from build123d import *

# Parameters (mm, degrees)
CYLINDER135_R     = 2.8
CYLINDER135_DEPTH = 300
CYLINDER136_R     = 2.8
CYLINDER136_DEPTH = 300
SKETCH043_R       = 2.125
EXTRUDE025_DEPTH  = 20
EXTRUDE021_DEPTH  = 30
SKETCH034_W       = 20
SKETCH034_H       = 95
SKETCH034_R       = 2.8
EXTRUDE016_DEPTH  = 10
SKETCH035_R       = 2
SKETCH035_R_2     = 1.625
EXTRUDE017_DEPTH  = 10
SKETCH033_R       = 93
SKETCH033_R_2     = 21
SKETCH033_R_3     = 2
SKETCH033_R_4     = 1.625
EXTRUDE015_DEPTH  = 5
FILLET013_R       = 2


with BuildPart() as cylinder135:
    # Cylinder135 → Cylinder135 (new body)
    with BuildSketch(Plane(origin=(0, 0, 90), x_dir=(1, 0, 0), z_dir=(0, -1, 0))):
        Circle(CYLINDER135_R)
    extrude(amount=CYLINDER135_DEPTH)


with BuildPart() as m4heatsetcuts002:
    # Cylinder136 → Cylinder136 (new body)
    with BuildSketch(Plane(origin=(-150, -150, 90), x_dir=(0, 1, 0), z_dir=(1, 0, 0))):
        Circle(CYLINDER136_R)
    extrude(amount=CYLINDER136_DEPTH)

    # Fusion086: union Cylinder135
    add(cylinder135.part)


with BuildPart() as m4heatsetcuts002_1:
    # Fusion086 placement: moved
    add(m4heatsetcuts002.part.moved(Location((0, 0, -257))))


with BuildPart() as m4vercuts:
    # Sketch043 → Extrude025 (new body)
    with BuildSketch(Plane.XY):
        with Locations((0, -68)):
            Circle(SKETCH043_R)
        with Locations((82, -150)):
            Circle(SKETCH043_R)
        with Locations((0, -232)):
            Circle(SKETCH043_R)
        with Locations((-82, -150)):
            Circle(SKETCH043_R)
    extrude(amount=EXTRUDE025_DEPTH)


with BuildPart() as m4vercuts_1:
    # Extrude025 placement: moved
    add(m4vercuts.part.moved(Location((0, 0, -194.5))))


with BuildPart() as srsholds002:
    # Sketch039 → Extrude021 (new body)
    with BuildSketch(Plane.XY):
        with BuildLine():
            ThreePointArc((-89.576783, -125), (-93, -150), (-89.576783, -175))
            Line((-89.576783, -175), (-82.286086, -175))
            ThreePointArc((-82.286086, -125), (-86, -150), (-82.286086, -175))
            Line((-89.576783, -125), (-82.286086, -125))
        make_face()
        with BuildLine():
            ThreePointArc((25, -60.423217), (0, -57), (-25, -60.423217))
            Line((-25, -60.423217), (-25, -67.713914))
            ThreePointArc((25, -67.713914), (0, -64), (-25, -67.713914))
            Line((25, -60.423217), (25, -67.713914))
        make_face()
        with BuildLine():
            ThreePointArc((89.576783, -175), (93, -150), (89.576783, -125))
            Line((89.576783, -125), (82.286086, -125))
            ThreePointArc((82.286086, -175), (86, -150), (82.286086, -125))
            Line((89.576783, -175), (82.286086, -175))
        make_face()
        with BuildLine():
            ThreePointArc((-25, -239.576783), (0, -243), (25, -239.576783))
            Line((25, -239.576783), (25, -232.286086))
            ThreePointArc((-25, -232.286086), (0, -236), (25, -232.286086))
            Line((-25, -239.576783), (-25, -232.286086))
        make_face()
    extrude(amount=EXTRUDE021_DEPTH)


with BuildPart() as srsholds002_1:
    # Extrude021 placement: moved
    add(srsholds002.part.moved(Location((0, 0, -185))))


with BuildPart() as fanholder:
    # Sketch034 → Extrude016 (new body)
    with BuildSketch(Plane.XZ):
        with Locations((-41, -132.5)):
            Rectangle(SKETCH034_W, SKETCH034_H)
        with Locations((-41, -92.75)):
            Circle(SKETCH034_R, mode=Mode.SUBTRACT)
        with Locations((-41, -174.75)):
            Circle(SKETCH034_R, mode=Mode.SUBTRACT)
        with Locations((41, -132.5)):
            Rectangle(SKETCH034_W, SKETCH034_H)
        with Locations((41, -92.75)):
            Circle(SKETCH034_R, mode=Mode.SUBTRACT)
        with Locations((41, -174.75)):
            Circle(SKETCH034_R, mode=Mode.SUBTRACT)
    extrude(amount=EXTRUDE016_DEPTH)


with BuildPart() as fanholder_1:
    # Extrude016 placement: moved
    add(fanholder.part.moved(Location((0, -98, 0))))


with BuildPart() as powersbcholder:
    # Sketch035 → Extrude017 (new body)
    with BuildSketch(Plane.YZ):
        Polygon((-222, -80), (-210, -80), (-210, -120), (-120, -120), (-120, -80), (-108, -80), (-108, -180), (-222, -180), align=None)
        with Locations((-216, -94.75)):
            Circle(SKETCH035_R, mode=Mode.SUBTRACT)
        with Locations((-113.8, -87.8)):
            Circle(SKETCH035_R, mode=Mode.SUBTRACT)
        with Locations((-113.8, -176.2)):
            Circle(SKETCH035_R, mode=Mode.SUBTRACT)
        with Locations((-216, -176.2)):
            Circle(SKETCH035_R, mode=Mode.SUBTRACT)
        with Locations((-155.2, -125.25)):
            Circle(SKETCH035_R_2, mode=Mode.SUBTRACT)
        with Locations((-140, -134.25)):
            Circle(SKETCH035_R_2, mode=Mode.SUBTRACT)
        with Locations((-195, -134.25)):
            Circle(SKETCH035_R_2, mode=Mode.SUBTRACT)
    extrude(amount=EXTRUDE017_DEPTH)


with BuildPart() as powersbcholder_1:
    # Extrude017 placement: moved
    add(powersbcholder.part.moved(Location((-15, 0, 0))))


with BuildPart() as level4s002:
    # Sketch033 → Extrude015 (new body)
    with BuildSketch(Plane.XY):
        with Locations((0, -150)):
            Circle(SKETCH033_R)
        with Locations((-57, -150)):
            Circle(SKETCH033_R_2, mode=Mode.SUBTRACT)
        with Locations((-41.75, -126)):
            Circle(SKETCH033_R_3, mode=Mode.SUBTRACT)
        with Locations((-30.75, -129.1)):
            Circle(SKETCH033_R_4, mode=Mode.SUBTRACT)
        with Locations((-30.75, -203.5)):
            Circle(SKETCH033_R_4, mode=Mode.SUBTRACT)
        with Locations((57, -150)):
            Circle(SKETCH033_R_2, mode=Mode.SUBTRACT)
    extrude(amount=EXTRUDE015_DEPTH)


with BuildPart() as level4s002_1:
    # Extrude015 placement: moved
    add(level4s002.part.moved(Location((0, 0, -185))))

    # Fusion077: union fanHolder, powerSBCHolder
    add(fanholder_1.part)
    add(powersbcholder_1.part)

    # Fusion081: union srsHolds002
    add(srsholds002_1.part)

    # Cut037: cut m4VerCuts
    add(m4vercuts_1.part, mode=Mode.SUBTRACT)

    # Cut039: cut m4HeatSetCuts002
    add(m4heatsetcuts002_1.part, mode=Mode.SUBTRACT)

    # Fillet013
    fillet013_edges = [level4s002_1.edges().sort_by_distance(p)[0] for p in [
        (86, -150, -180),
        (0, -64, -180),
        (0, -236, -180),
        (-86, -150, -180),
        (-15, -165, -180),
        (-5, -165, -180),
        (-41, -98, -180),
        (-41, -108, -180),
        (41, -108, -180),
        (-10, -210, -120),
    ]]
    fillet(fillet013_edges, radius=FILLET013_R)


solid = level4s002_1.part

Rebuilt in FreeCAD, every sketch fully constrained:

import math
import FreeCAD as App
import Part
import Sketcher

V = App.Vector
Q = App.Units.Quantity


def edges_at(feature, points):
    """Names of the edges that pass closest to the given points."""
    edges = feature.Shape.Edges
    near = lambda p: min(range(len(edges)), key=lambda i: edges[i].distToShape(Part.Vertex(*p))[0])
    return sorted({f"Edge{near(p) + 1}" for p in points})

doc = App.newDocument("Part")
body = doc.addObject("PartDesign::Body", "Body")

# Sketch on XZ plane
sketch1 = doc.addObject("Sketcher::SketchObject", "Sketch")
body.addObject(sketch1)
sketch1.AttachmentSupport = (doc.XZ_Plane, [""])
sketch1.MapMode = "FlatFace"
sketch1.addGeometry(Part.Circle(V(0, 90, 0), V(0, 0, 1), 2.8), False)
sketch1.addConstraint(Sketcher.Constraint("PointOnObject", 0, 3, -2))
sketch1.addConstraint(Sketcher.Constraint("Diameter", 0, Q("5.6 mm")))
sketch1.addConstraint(Sketcher.Constraint("DistanceY", -1, 1, 0, 3, Q("90 mm")))
pad1 = doc.addObject("PartDesign::Pad", "Pad")
body.addObject(pad1)
pad1.Profile = sketch1
pad1.Length = 300
body2 = doc.addObject("PartDesign::Body", "Body001")

# Sketch on YZ plane
sketch2 = doc.addObject("Sketcher::SketchObject", "Sketch001")
body2.addObject(sketch2)
sketch2.AttachmentSupport = (doc.getObject("YZ_Plane001"), [""])
sketch2.MapMode = "FlatFace"
sketch2.AttachmentOffset = App.Placement(V(0, 0, -150), App.Rotation())
sketch2.addGeometry(Part.Circle(V(-150, 90, 0), V(0, 0, 1), 2.8), False)
sketch2.addConstraint(Sketcher.Constraint("Diameter", 0, Q("5.6 mm")))
sketch2.addConstraint(Sketcher.Constraint("DistanceX", 0, 3, -1, 1, Q("150 mm")))
sketch2.addConstraint(Sketcher.Constraint("DistanceY", -1, 1, 0, 3, Q("90 mm")))
pad2 = doc.addObject("PartDesign::Pad", "Pad001")
body2.addObject(pad2)
pad2.Profile = sketch2
pad2.Length = 300
doc.recompute()

boolean = doc.addObject("PartDesign::Boolean", "Boolean")
body2.addObject(boolean)
boolean.Type = "Fuse"
boolean.addObjects([body])
body3 = doc.addObject("PartDesign::Body", "Body002")
doc.recompute()

body2.Placement = App.Placement(V(0, 0, -257), App.Rotation(V(0, 0, 1), 0))
boolean2 = doc.addObject("PartDesign::Boolean", "Boolean001")
body3.addObject(boolean2)
boolean2.Type = "Fuse"
boolean2.addObjects([body2])
body4 = doc.addObject("PartDesign::Body", "Body003")
body4.AllowCompound = True

# Sketch on XY plane
sketch3 = doc.addObject("Sketcher::SketchObject", "Sketch002")
body4.addObject(sketch3)
sketch3.AttachmentSupport = (doc.getObject("XY_Plane003"), [""])
sketch3.MapMode = "FlatFace"
sketch3.addGeometry(Part.Circle(V(0, -68, 0), V(0, 0, 1), 2.1), False)
sketch3.addGeometry(Part.Circle(V(82, -150, 0), V(0, 0, 1), 2.1), False)
sketch3.addGeometry(Part.Circle(V(0, -232, 0), V(0, 0, 1), 2.1), False)
sketch3.addGeometry(Part.Circle(V(-82, -150, 0), V(0, 0, 1), 2.1), False)
sketch3.addConstraint(Sketcher.Constraint("Equal", 0, 1))
sketch3.addConstraint(Sketcher.Constraint("Equal", 1, 2))
sketch3.addConstraint(Sketcher.Constraint("Equal", 2, 3))
sketch3.addConstraint(Sketcher.Constraint("Symmetric", 1, 3, 3, 3, -2))
sketch3.addConstraint(Sketcher.Constraint("PointOnObject", 0, 3, -2))
sketch3.addConstraint(Sketcher.Constraint("PointOnObject", 2, 3, -2))
sketch3.addConstraint(Sketcher.Constraint("Diameter", 0, Q("4.25 mm")))
sketch3.addConstraint(Sketcher.Constraint("DistanceY", 0, 3, -1, 1, Q("68 mm")))
sketch3.addConstraint(Sketcher.Constraint("DistanceX", -1, 1, 1, 3, Q("82 mm")))
sketch3.addConstraint(Sketcher.Constraint("DistanceY", 1, 3, -1, 1, Q("150 mm")))
sketch3.addConstraint(Sketcher.Constraint("DistanceY", 2, 3, -1, 1, Q("232 mm")))
pad3 = doc.addObject("PartDesign::Pad", "Pad002")
body4.addObject(pad3)
pad3.Profile = sketch3
pad3.Length = 20
body5 = doc.addObject("PartDesign::Body", "Body004")
body5.AllowCompound = True
doc.recompute()

body4.Placement = App.Placement(V(0, 0, -194.5), App.Rotation(V(0, 0, 1), 0))
boolean3 = doc.addObject("PartDesign::Boolean", "Boolean002")
body5.addObject(boolean3)
boolean3.Type = "Fuse"
boolean3.addObjects([body4])
body6 = doc.addObject("PartDesign::Body", "Body005")
body6.AllowCompound = True

# Sketch on XY plane
sketch4 = doc.addObject("Sketcher::SketchObject", "Sketch003")
body6.addObject(sketch4)
sketch4.AttachmentSupport = (doc.getObject("XY_Plane005"), [""])
sketch4.MapMode = "FlatFace"
sketch4.addGeometry(Part.ArcOfCircle(Part.Circle(V(0.000008, -150, 0), V(0, 0, 1), 93.000008), math.radians(164.406106), math.radians(195.593894)), False)
sketch4.addGeometry(Part.LineSegment(V(-89.576783, -175, 0), V(-82.286086, -175, 0)), False)
sketch4.addGeometry(Part.ArcOfCircle(Part.Circle(V(-0.000007, -150, 0), V(0, 0, 1), 85.999993), math.radians(163.100269), math.radians(196.899731)), False)
sketch4.addGeometry(Part.LineSegment(V(-82.286086, -125, 0), V(-89.576783, -125, 0)), False)
sketch4.addGeometry(Part.ArcOfCircle(Part.Circle(V(0, -150.000008, 0), V(0, 0, 1), 93.000008), math.radians(74.406106), math.radians(105.593894)), False)
sketch4.addGeometry(Part.LineSegment(V(-25, -60.423217, 0), V(-25, -67.713914, 0)), False)
sketch4.addGeometry(Part.ArcOfCircle(Part.Circle(V(0, -149.999993, 0), V(0, 0, 1), 85.999993), math.radians(73.100269), math.radians(106.899731)), False)
sketch4.addGeometry(Part.LineSegment(V(25, -67.713914, 0), V(25, -60.423217, 0)), False)
sketch4.addGeometry(Part.ArcOfCircle(Part.Circle(V(-0.000008, -150, 0), V(0, 0, 1), 93.000008), math.radians(-15.593894), math.radians(15.593894)), False)
sketch4.addGeometry(Part.LineSegment(V(89.576783, -125, 0), V(82.286086, -125, 0)), False)
sketch4.addGeometry(Part.ArcOfCircle(Part.Circle(V(0.000007, -150, 0), V(0, 0, 1), 85.999993), math.radians(-16.899731), math.radians(16.899731)), False)
sketch4.addGeometry(Part.LineSegment(V(82.286086, -175, 0), V(89.576783, -175, 0)), False)
sketch4.addGeometry(Part.ArcOfCircle(Part.Circle(V(0, -149.999992, 0), V(0, 0, 1), 93.000008), math.radians(-105.593894), math.radians(-74.406106)), False)
sketch4.addGeometry(Part.LineSegment(V(25, -239.576783, 0), V(25, -232.286086, 0)), False)
sketch4.addGeometry(Part.ArcOfCircle(Part.Circle(V(0, -150.000007, 0), V(0, 0, 1), 85.999993), math.radians(-106.899731), math.radians(-73.100269)), False)
sketch4.addGeometry(Part.LineSegment(V(-25, -232.286086, 0), V(-25, -239.576783, 0)), False)
sketch4.addConstraint(Sketcher.Constraint("Coincident", 0, 2, 1, 1))
sketch4.addConstraint(Sketcher.Constraint("Coincident", 1, 2, 2, 2))
sketch4.addConstraint(Sketcher.Constraint("Coincident", 2, 1, 3, 1))
sketch4.addConstraint(Sketcher.Constraint("Coincident", 3, 2, 0, 1))
sketch4.addConstraint(Sketcher.Constraint("Coincident", 4, 2, 5, 1))
sketch4.addConstraint(Sketcher.Constraint("Coincident", 5, 2, 6, 2))
sketch4.addConstraint(Sketcher.Constraint("Coincident", 6, 1, 7, 1))
sketch4.addConstraint(Sketcher.Constraint("Coincident", 7, 2, 4, 1))
sketch4.addConstraint(Sketcher.Constraint("Coincident", 8, 2, 9, 1))
sketch4.addConstraint(Sketcher.Constraint("Coincident", 9, 2, 10, 2))
sketch4.addConstraint(Sketcher.Constraint("Coincident", 10, 1, 11, 1))
sketch4.addConstraint(Sketcher.Constraint("Coincident", 11, 2, 8, 1))
sketch4.addConstraint(Sketcher.Constraint("Coincident", 12, 2, 13, 1))
sketch4.addConstraint(Sketcher.Constraint("Coincident", 13, 2, 14, 2))
sketch4.addConstraint(Sketcher.Constraint("Coincident", 14, 1, 15, 1))
sketch4.addConstraint(Sketcher.Constraint("Coincident", 15, 2, 12, 1))
sketch4.addConstraint(Sketcher.Constraint("Horizontal", 1))
sketch4.addConstraint(Sketcher.Constraint("Horizontal", 3))
sketch4.addConstraint(Sketcher.Constraint("Vertical", 5))
sketch4.addConstraint(Sketcher.Constraint("Vertical", 7))
sketch4.addConstraint(Sketcher.Constraint("Horizontal", 9))
sketch4.addConstraint(Sketcher.Constraint("Horizontal", 11))
sketch4.addConstraint(Sketcher.Constraint("Vertical", 13))
sketch4.addConstraint(Sketcher.Constraint("Vertical", 15))
sketch4.addConstraint(Sketcher.Constraint("Coincident", 6, 3, 2, 3))
sketch4.addConstraint(Sketcher.Constraint("Coincident", 8, 3, 2, 3))
sketch4.addConstraint(Sketcher.Constraint("Coincident", 10, 3, 0, 3))
sketch4.addConstraint(Sketcher.Constraint("Coincident", 12, 3, 6, 3))
sketch4.addConstraint(Sketcher.Constraint("Coincident", 14, 3, 2, 3))
sketch4.addConstraint(Sketcher.Constraint("PointOnObject", 4, 3, -2))
sketch4.addConstraint(Sketcher.Constraint("PointOnObject", 6, 3, -2))
sketch4.addConstraint(Sketcher.Constraint("DistanceY", 0, 3, -1, 1, Q("150 mm")))
sketch4.addConstraint(Sketcher.Constraint("DistanceY", 2, 3, -1, 1, Q("150 mm")))
sketch4.addConstraint(Sketcher.Constraint("DistanceY", 0, 2, -1, 1, Q("175 mm")))
sketch4.addConstraint(Sketcher.Constraint("DistanceY", 2, 1, -1, 1, Q("125 mm")))
sketch4.addConstraint(Sketcher.Constraint("DistanceX", 4, 2, -1, 1, Q("25 mm")))
sketch4.addConstraint(Sketcher.Constraint("DistanceX", -1, 1, 6, 1, Q("25 mm")))
sketch4.addConstraint(Sketcher.Constraint("DistanceY", 8, 2, -1, 1, Q("125 mm")))
sketch4.addConstraint(Sketcher.Constraint("DistanceY", 10, 1, -1, 1, Q("175 mm")))
sketch4.addConstraint(Sketcher.Constraint("DistanceX", -1, 1, 12, 2, Q("25 mm")))
sketch4.addConstraint(Sketcher.Constraint("DistanceX", 14, 1, -1, 1, Q("25 mm")))
sketch4.addConstraint(Sketcher.Constraint("Radius", 0, Q("93.000008 mm")))
sketch4.addConstraint(Sketcher.Constraint("Radius", 2, Q("85.999993 mm")))
sketch4.addConstraint(Sketcher.Constraint("Radius", 4, Q("93.000008 mm")))
sketch4.addConstraint(Sketcher.Constraint("Radius", 6, Q("85.999993 mm")))
sketch4.addConstraint(Sketcher.Constraint("Radius", 8, Q("93.000008 mm")))
sketch4.addConstraint(Sketcher.Constraint("Radius", 10, Q("85.999993 mm")))
sketch4.addConstraint(Sketcher.Constraint("Radius", 12, Q("93.000008 mm")))
sketch4.addConstraint(Sketcher.Constraint("Radius", 14, Q("85.999993 mm")))
sketch4.addConstraint(Sketcher.Constraint("DistanceX", 1, 1, 1, 2, Q("7.290697 mm")))
sketch4.addConstraint(Sketcher.Constraint("DistanceY", 5, 2, 5, 1, Q("7.290697 mm")))
pad4 = doc.addObject("PartDesign::Pad", "Pad003")
body6.addObject(pad4)
pad4.Profile = sketch4
pad4.Length = 30
body7 = doc.addObject("PartDesign::Body", "Body006")
body7.AllowCompound = True
doc.recompute()

body6.Placement = App.Placement(V(0, 0, -185), App.Rotation(V(0, 0, 1), 0))
boolean4 = doc.addObject("PartDesign::Boolean", "Boolean003")
body7.addObject(boolean4)
boolean4.Type = "Fuse"
boolean4.addObjects([body6])
body8 = doc.addObject("PartDesign::Body", "Body007")
body8.AllowCompound = True

# Sketch on XZ plane
sketch5 = doc.addObject("Sketcher::SketchObject", "Sketch004")
body8.addObject(sketch5)
sketch5.AttachmentSupport = (doc.getObject("XZ_Plane007"), [""])
sketch5.MapMode = "FlatFace"
sketch5.addGeometry(Part.LineSegment(V(-51, -85, 0), V(-51, -180, 0)), False)
sketch5.addGeometry(Part.LineSegment(V(-51, -180, 0), V(-31, -180, 0)), False)
sketch5.addGeometry(Part.LineSegment(V(-31, -180, 0), V(-31, -85, 0)), False)
sketch5.addGeometry(Part.LineSegment(V(-31, -85, 0), V(-51, -85, 0)), False)
sketch5.addGeometry(Part.Circle(V(-41, -174.8, 0), V(0, 0, 1), 2.8), False)
sketch5.addGeometry(Part.Circle(V(-41, -92.8, 0), V(0, 0, 1), 2.8), False)
sketch5.addGeometry(Part.LineSegment(V(31, -85, 0), V(31, -180, 0)), False)
sketch5.addGeometry(Part.LineSegment(V(31, -180, 0), V(51, -180, 0)), False)
sketch5.addGeometry(Part.LineSegment(V(51, -180, 0), V(51, -85, 0)), False)
sketch5.addGeometry(Part.LineSegment(V(51, -85, 0), V(31, -85, 0)), False)
sketch5.addGeometry(Part.Circle(V(41, -174.8, 0), V(0, 0, 1), 2.8), False)
sketch5.addGeometry(Part.Circle(V(41, -92.8, 0), V(0, 0, 1), 2.8), False)
sketch5.addConstraint(Sketcher.Constraint("Coincident", 0, 2, 1, 1))
sketch5.addConstraint(Sketcher.Constraint("Coincident", 1, 2, 2, 1))
sketch5.addConstraint(Sketcher.Constraint("Coincident", 2, 2, 3, 1))
sketch5.addConstraint(Sketcher.Constraint("Coincident", 3, 2, 0, 1))
sketch5.addConstraint(Sketcher.Constraint("Coincident", 6, 2, 7, 1))
sketch5.addConstraint(Sketcher.Constraint("Coincident", 7, 2, 8, 1))
sketch5.addConstraint(Sketcher.Constraint("Coincident", 8, 2, 9, 1))
sketch5.addConstraint(Sketcher.Constraint("Coincident", 9, 2, 6, 1))
sketch5.addConstraint(Sketcher.Constraint("Vertical", 0))
sketch5.addConstraint(Sketcher.Constraint("Horizontal", 1))
sketch5.addConstraint(Sketcher.Constraint("Vertical", 2))
sketch5.addConstraint(Sketcher.Constraint("Horizontal", 3))
sketch5.addConstraint(Sketcher.Constraint("Vertical", 6))
sketch5.addConstraint(Sketcher.Constraint("Horizontal", 7))
sketch5.addConstraint(Sketcher.Constraint("Vertical", 8))
sketch5.addConstraint(Sketcher.Constraint("Horizontal", 9))
sketch5.addConstraint(Sketcher.Constraint("Equal", 4, 5))
sketch5.addConstraint(Sketcher.Constraint("Equal", 5, 10))
sketch5.addConstraint(Sketcher.Constraint("Equal", 10, 11))
sketch5.addConstraint(Sketcher.Constraint("Symmetric", 4, 3, 10, 3, -2))
sketch5.addConstraint(Sketcher.Constraint("Symmetric", 5, 3, 11, 3, -2))
sketch5.addConstraint(Sketcher.Constraint("Symmetric", 1, 2, 6, 2, -2))
sketch5.addConstraint(Sketcher.Constraint("Symmetric", 3, 2, 8, 2, -2))
sketch5.addConstraint(Sketcher.Constraint("Vertical", 4, 3, 5, 3))
sketch5.addConstraint(Sketcher.Constraint("Diameter", 4, Q("5.6 mm")))
sketch5.addConstraint(Sketcher.Constraint("DistanceX", 1, 1, 1, 2, Q("20 mm")))
sketch5.addConstraint(Sketcher.Constraint("DistanceY", 0, 2, 0, 1, Q("95 mm")))
sketch5.addConstraint(Sketcher.Constraint("DistanceX", 4, 3, -1, 1, Q("41 mm")))
sketch5.addConstraint(Sketcher.Constraint("DistanceX", 0, 2, -1, 1, Q("51 mm")))
sketch5.addConstraint(Sketcher.Constraint("DistanceY", 0, 2, -1, 1, Q("180 mm")))
sketch5.addConstraint(Sketcher.Constraint("DistanceY", 4, 3, 5, 3, Q("82 mm")))
sketch5.addConstraint(Sketcher.Constraint("DistanceY", 4, 3, -1, 1, Q("174.75 mm")))
pad5 = doc.addObject("PartDesign::Pad", "Pad004")
body8.addObject(pad5)
pad5.Profile = sketch5
pad5.Length = 10
body9 = doc.addObject("PartDesign::Body", "Body008")
body9.AllowCompound = True
doc.recompute()

body8.Placement = App.Placement(V(0, -98, 0), App.Rotation(V(0, 0, 1), 0))
boolean5 = doc.addObject("PartDesign::Boolean", "Boolean004")
body9.addObject(boolean5)
boolean5.Type = "Fuse"
boolean5.addObjects([body8])
body10 = doc.addObject("PartDesign::Body", "Body009")

# Sketch on YZ plane
sketch6 = doc.addObject("Sketcher::SketchObject", "Sketch005")
body10.addObject(sketch6)
sketch6.AttachmentSupport = (doc.getObject("YZ_Plane009"), [""])
sketch6.MapMode = "FlatFace"
sketch6.addGeometry(Part.LineSegment(V(-210, -80, 0), V(-222, -80, 0)), False)
sketch6.addGeometry(Part.LineSegment(V(-222, -80, 0), V(-222, -180, 0)), False)
sketch6.addGeometry(Part.LineSegment(V(-222, -180, 0), V(-108, -180, 0)), False)
sketch6.addGeometry(Part.LineSegment(V(-108, -180, 0), V(-108, -80, 0)), False)
sketch6.addGeometry(Part.LineSegment(V(-108, -80, 0), V(-120, -80, 0)), False)
sketch6.addGeometry(Part.LineSegment(V(-120, -80, 0), V(-120, -120, 0)), False)
sketch6.addGeometry(Part.LineSegment(V(-120, -120, 0), V(-210, -120, 0)), False)
sketch6.addGeometry(Part.LineSegment(V(-210, -120, 0), V(-210, -80, 0)), False)
sketch6.addGeometry(Part.Circle(V(-113.8, -176.2, 0), V(0, 0, 1), 2), False)
sketch6.addGeometry(Part.Circle(V(-140, -134.2, 0), V(0, 0, 1), 1.6), False)
sketch6.addGeometry(Part.Circle(V(-216, -176.2, 0), V(0, 0, 1), 2), False)
sketch6.addGeometry(Part.Circle(V(-195, -134.2, 0), V(0, 0, 1), 1.6), False)
sketch6.addGeometry(Part.Circle(V(-155.2, -125.2, 0), V(0, 0, 1), 1.6), False)
sketch6.addGeometry(Part.Circle(V(-113.8, -87.8, 0), V(0, 0, 1), 2), False)
sketch6.addGeometry(Part.Circle(V(-216, -94.8, 0), V(0, 0, 1), 2), False)
sketch6.addConstraint(Sketcher.Constraint("Coincident", 0, 2, 1, 1))
sketch6.addConstraint(Sketcher.Constraint("Coincident", 1, 2, 2, 1))
sketch6.addConstraint(Sketcher.Constraint("Coincident", 2, 2, 3, 1))
sketch6.addConstraint(Sketcher.Constraint("Coincident", 3, 2, 4, 1))
sketch6.addConstraint(Sketcher.Constraint("Coincident", 4, 2, 5, 1))
sketch6.addConstraint(Sketcher.Constraint("Coincident", 5, 2, 6, 1))
sketch6.addConstraint(Sketcher.Constraint("Coincident", 6, 2, 7, 1))
sketch6.addConstraint(Sketcher.Constraint("Coincident", 7, 2, 0, 1))
sketch6.addConstraint(Sketcher.Constraint("Horizontal", 0))
sketch6.addConstraint(Sketcher.Constraint("Vertical", 1))
sketch6.addConstraint(Sketcher.Constraint("Horizontal", 2))
sketch6.addConstraint(Sketcher.Constraint("Vertical", 3))
sketch6.addConstraint(Sketcher.Constraint("Horizontal", 4))
sketch6.addConstraint(Sketcher.Constraint("Vertical", 5))
sketch6.addConstraint(Sketcher.Constraint("Horizontal", 6))
sketch6.addConstraint(Sketcher.Constraint("Vertical", 7))
sketch6.addConstraint(Sketcher.Constraint("Equal", 8, 10))
sketch6.addConstraint(Sketcher.Constraint("Equal", 9, 11))
sketch6.addConstraint(Sketcher.Constraint("Equal", 11, 12))
sketch6.addConstraint(Sketcher.Constraint("Equal", 10, 13))
sketch6.addConstraint(Sketcher.Constraint("Equal", 13, 14))
sketch6.addConstraint(Sketcher.Constraint("Horizontal", 8, 3, 10, 3))
sketch6.addConstraint(Sketcher.Constraint("Horizontal", 9, 3, 11, 3))
sketch6.addConstraint(Sketcher.Constraint("Horizontal", 0, 2, 3, 2))
sketch6.addConstraint(Sketcher.Constraint("Vertical", 8, 3, 13, 3))
sketch6.addConstraint(Sketcher.Constraint("Vertical", 10, 3, 14, 3))
sketch6.addConstraint(Sketcher.Constraint("Equal", 0, 4))
sketch6.addConstraint(Sketcher.Constraint("Diameter", 8, Q("4 mm")))
sketch6.addConstraint(Sketcher.Constraint("Diameter", 9, Q("3.25 mm")))
sketch6.addConstraint(Sketcher.Constraint("DistanceX", 0, 2, 0, 1, Q("12 mm")))
sketch6.addConstraint(Sketcher.Constraint("DistanceX", 2, 1, 2, 2, Q("114 mm")))
sketch6.addConstraint(Sketcher.Constraint("DistanceY", 1, 2, 1, 1, Q("100 mm")))
sketch6.addConstraint(Sketcher.Constraint("DistanceY", 5, 2, 5, 1, Q("40 mm")))
sketch6.addConstraint(Sketcher.Constraint("DistanceX", 9, 3, -1, 1, Q("140 mm")))
sketch6.addConstraint(Sketcher.Constraint("DistanceX", 10, 3, -1, 1, Q("216 mm")))
sketch6.addConstraint(Sketcher.Constraint("DistanceX", 11, 3, -1, 1, Q("195 mm")))
sketch6.addConstraint(Sketcher.Constraint("DistanceX", 0, 2, -1, 1, Q("222 mm")))
sketch6.addConstraint(Sketcher.Constraint("DistanceY", 0, 2, -1, 1, Q("80 mm")))
sketch6.addConstraint(Sketcher.Constraint("DistanceY", 9, 3, 12, 3, Q("9 mm")))
sketch6.addConstraint(Sketcher.Constraint("DistanceX", 8, 3, -1, 1, Q("113.8 mm")))
sketch6.addConstraint(Sketcher.Constraint("DistanceY", 8, 3, -1, 1, Q("176.2 mm")))
sketch6.addConstraint(Sketcher.Constraint("DistanceX", 12, 3, -1, 1, Q("155.2 mm")))
sketch6.addConstraint(Sketcher.Constraint("DistanceY", 13, 3, -1, 1, Q("87.8 mm")))
sketch6.addConstraint(Sketcher.Constraint("DistanceY", 11, 3, 14, 3, Q("39.5 mm")))
sketch6.addConstraint(Sketcher.Constraint("DistanceY", 9, 3, -1, 1, Q("134.25 mm")))
pad6 = doc.addObject("PartDesign::Pad", "Pad005")
body10.addObject(pad6)
pad6.Profile = sketch6
pad6.Length = 10
body11 = doc.addObject("PartDesign::Body", "Body010")
doc.recompute()

body10.Placement = App.Placement(V(-15, 0, 0), App.Rotation(V(0, 0, 1), 0))
boolean6 = doc.addObject("PartDesign::Boolean", "Boolean005")
body11.addObject(boolean6)
boolean6.Type = "Fuse"
boolean6.addObjects([body10])
body12 = doc.addObject("PartDesign::Body", "Body011")

# Sketch on XY plane
sketch7 = doc.addObject("Sketcher::SketchObject", "Sketch006")
body12.addObject(sketch7)
sketch7.AttachmentSupport = (doc.getObject("XY_Plane011"), [""])
sketch7.MapMode = "FlatFace"
sketch7.addGeometry(Part.Circle(V(0, -150, 0), V(0, 0, 1), 93), False)
sketch7.addGeometry(Part.Circle(V(-30.8, -203.5, 0), V(0, 0, 1), 1.6), False)
sketch7.addGeometry(Part.Circle(V(-57, -150, 0), V(0, 0, 1), 21), False)
sketch7.addGeometry(Part.Circle(V(-41.8, -126, 0), V(0, 0, 1), 2), False)
sketch7.addGeometry(Part.Circle(V(-30.8, -129.1, 0), V(0, 0, 1), 1.6), False)
sketch7.addGeometry(Part.Circle(V(57, -150, 0), V(0, 0, 1), 21), False)
sketch7.addConstraint(Sketcher.Constraint("Equal", 1, 4))
sketch7.addConstraint(Sketcher.Constraint("Equal", 2, 5))
sketch7.addConstraint(Sketcher.Constraint("Symmetric", 2, 3, 5, 3, -2))
sketch7.addConstraint(Sketcher.Constraint("PointOnObject", 0, 3, -2))
sketch7.addConstraint(Sketcher.Constraint("Horizontal", 0, 3, 2, 3))
sketch7.addConstraint(Sketcher.Constraint("Vertical", 1, 3, 4, 3))
sketch7.addConstraint(Sketcher.Constraint("Diameter", 0, Q("186 mm")))
sketch7.addConstraint(Sketcher.Constraint("Diameter", 2, Q("42 mm")))
sketch7.addConstraint(Sketcher.Constraint("Diameter", 3, Q("4 mm")))
sketch7.addConstraint(Sketcher.Constraint("Diameter", 1, Q("3.25 mm")))
sketch7.addConstraint(Sketcher.Constraint("DistanceY", 0, 3, -1, 1, Q("150 mm")))
sketch7.addConstraint(Sketcher.Constraint("DistanceX", 2, 3, -1, 1, Q("57 mm")))
sketch7.addConstraint(Sketcher.Constraint("DistanceY", 3, 3, -1, 1, Q("126 mm")))
sketch7.addConstraint(Sketcher.Constraint("DistanceX", 3, 3, 1, 3, Q("11 mm")))
sketch7.addConstraint(Sketcher.Constraint("DistanceY", 1, 3, -1, 1, Q("203.5 mm")))
sketch7.addConstraint(Sketcher.Constraint("DistanceY", 4, 3, -1, 1, Q("129.1 mm")))
sketch7.addConstraint(Sketcher.Constraint("DistanceX", 1, 3, -1, 1, Q("30.75 mm")))
pad7 = doc.addObject("PartDesign::Pad", "Pad006")
body12.addObject(pad7)
pad7.Profile = sketch7
pad7.Length = 5
body13 = doc.addObject("PartDesign::Body", "Body012")
doc.recompute()

body12.Placement = App.Placement(V(0, 0, -185), App.Rotation(V(0, 0, 1), 0))
boolean7 = doc.addObject("PartDesign::Boolean", "Boolean006")
body13.addObject(boolean7)
boolean7.Type = "Fuse"
boolean7.addObjects([body12])
doc.recompute()

boolean8 = doc.addObject("PartDesign::Boolean", "Boolean007")
body13.addObject(boolean8)
boolean8.Type = "Fuse"
boolean8.addObjects([body9])
doc.recompute()

boolean9 = doc.addObject("PartDesign::Boolean", "Boolean008")
body13.addObject(boolean9)
boolean9.Type = "Fuse"
boolean9.addObjects([body11])
doc.recompute()

boolean10 = doc.addObject("PartDesign::Boolean", "Boolean009")
body13.addObject(boolean10)
boolean10.Type = "Fuse"
boolean10.addObjects([body7])
doc.recompute()

boolean11 = doc.addObject("PartDesign::Boolean", "Boolean010")
body13.addObject(boolean11)
boolean11.Type = "Cut"
boolean11.addObjects([body5])
doc.recompute()

boolean12 = doc.addObject("PartDesign::Boolean", "Boolean011")
body13.addObject(boolean12)
boolean12.Type = "Cut"
boolean12.addObjects([body3])
doc.recompute()

fillet = doc.addObject("PartDesign::Fillet", "Fillet")
body13.addObject(fillet)
fillet.Base = (boolean12, edges_at(boolean12, [
    (86, -150, -180),
    (0, -64, -180),
    (0, -236, -180),
    (-86, -150, -180),
    (-15, -165, -180),
    (-5, -165, -180),
    (-41, -98, -180),
    (-41, -108, -180),
    (41, -108, -180),
    (-10, -210, -120),
]))
fillet.Radius = 2

doc.recompute()
